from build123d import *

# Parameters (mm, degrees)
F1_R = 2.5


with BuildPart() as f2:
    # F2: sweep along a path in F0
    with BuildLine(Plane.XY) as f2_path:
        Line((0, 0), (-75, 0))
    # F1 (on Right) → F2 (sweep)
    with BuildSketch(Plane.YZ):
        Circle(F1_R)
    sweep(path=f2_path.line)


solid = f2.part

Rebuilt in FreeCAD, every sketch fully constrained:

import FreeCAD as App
import Part
import Sketcher

V = App.Vector
Q = App.Units.Quantity

doc = App.newDocument("Part")
body = doc.addObject("PartDesign::Body", "Body")

# Sketch on YZ plane
sketch1 = body.newObject("Sketcher::SketchObject", "Sketch")
sketch1.AttachmentSupport = (doc.getObject("YZ_Plane"), [""])
sketch1.MapMode = "FlatFace"
sketch1.addGeometry(Part.Circle(V(0, 0, 0), V(0, 0, 1), 2.5), False)
sketch1.addConstraint([
    Sketcher.Constraint("Coincident", 0, 3, -1, 1),
    Sketcher.Constraint("Diameter", 0, Q("5 mm")),
])

# Sketch on XY plane
sketch2 = body.newObject("Sketcher::SketchObject", "Sketch001")
sketch2.AttachmentSupport = (doc.getObject("XY_Plane"), [""])
sketch2.MapMode = "FlatFace"
sketch2.addGeometry(Part.LineSegment(V(0, 0, 0), V(-75, 0, 0)), False)
sketch2.addConstraint([
    Sketcher.Constraint("Horizontal", 0),
    Sketcher.Constraint("Coincident", 0, 1, -1, 1),
    Sketcher.Constraint("DistanceX", 0, 2, 0, 1, Q("75 mm")),
])
doc.recompute()

additivepipe = body.newObject("PartDesign::AdditivePipe", "AdditivePipe")
additivepipe.Profile = sketch1
additivepipe.Spine = (sketch2, ["Edge1"])

doc.recompute()
